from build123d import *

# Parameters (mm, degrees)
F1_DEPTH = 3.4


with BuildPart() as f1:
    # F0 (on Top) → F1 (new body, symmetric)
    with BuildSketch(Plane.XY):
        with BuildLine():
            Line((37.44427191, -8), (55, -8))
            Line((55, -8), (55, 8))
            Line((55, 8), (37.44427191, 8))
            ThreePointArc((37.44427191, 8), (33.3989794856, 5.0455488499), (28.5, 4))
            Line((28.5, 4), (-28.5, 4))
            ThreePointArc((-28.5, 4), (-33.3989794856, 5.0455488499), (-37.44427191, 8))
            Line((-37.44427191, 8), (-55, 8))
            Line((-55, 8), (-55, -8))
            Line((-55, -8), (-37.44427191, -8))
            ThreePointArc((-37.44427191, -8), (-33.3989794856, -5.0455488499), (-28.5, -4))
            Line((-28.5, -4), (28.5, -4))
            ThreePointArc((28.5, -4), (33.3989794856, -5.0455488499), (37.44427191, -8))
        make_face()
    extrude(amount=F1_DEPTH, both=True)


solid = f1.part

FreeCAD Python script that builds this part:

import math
import FreeCAD as App
import Part
import Sketcher

V = App.Vector
Q = App.Units.Quantity

doc = App.newDocument("Part")
body = doc.addObject("PartDesign::Body", "Body")

# Sketch on XY plane
sketch1 = body.newObject("Sketcher::SketchObject", "Sketch")
sketch1.AttachmentSupport = (doc.getObject("XY_Plane"), [""])
sketch1.MapMode = "FlatFace"
sketch1.addGeometry([
    Part.LineSegment(V(37, -8, 0), V(55, -8, 0)),  # 0
    Part.LineSegment(V(55, -8, 0), V(55, 8, 0)),  # 1
    Part.LineSegment(V(55, 8, 0), V(37, 8, 0)),  # 2
    Part.ArcOfCircle(Part.Circle(V(28, 16, 0), V(0, 0, 1), 12), math.radians(-90), math.radians(-42)),  # 3
    Part.LineSegment(V(28, 4, 0), V(-28, 4, 0)),  # 4
    Part.ArcOfCircle(Part.Circle(V(-28, 16, 0), V(0, 0, 1), 12), math.radians(-138), math.radians(-90)),  # 5
    Part.LineSegment(V(-37, 8, 0), V(-55, 8, 0)),  # 6
    Part.LineSegment(V(-55, 8, 0), V(-55, -8, 0)),  # 7
    Part.LineSegment(V(-55, -8, 0), V(-37, -8, 0)),  # 8
    Part.ArcOfCircle(Part.Circle(V(-28, -16, 0), V(0, 0, 1), 12), math.radians(90), math.radians(138)),  # 9
    Part.LineSegment(V(-28, -4, 0), V(28, -4, 0)),  # 10
    Part.ArcOfCircle(Part.Circle(V(28, -16, 0), V(0, 0, 1), 12), math.radians(42), math.radians(90)),  # 11
], False)
sketch1.addConstraint([
    Sketcher.Constraint("Coincident", 0, 2, 1, 1),
    Sketcher.Constraint("Coincident", 1, 2, 2, 1),
    Sketcher.Constraint("Coincident", 2, 2, 3, 2),
    Sketcher.Constraint("Tangent", 3, 1, 4, 1),
    Sketcher.Constraint("Tangent", 4, 2, 5, 2),
    Sketcher.Constraint("Coincident", 5, 1, 6, 1),
    Sketcher.Constraint("Coincident", 6, 2, 7, 1),
    Sketcher.Constraint("Coincident", 7, 2, 8, 1),
    Sketcher.Constraint("Coincident", 8, 2, 9, 2),
    Sketcher.Constraint("Tangent", 9, 1, 10, 1),
    Sketcher.Constraint("Tangent", 10, 2, 11, 2),
    Sketcher.Constraint("Coincident", 11, 1, 0, 1),
    Sketcher.Constraint("Horizontal", 0),
    Sketcher.Constraint("Vertical", 1),
    Sketcher.Constraint("Horizontal", 2),
    Sketcher.Constraint("Horizontal", 4),
    Sketcher.Constraint("Horizontal", 6),
    Sketcher.Constraint("Vertical", 7),
    Sketcher.Constraint("Horizontal", 8),
    Sketcher.Constraint("Horizontal", 10),
    Sketcher.Constraint("Equal", 3, 5),
    Sketcher.Constraint("Equal", 5, 9),
    Sketcher.Constraint("Equal", 9, 11),
    Sketcher.Constraint("Symmetric", 3, 3, 9, 3, -1, 1),
    Sketcher.Constraint("Symmetric", 0, 2, 6, 2, -1, 1),
    Sketcher.Constraint("Symmetric", 2, 2, 5, 1, -2),
    Sketcher.Constraint("Symmetric", 8, 2, 11, 1, -2),
    Sketcher.Constraint("Radius", 3, Q("12 mm")),
    Sketcher.Constraint("DistanceX", 4, 2, 4, 1, Q("57 mm")),
    Sketcher.Constraint("DistanceY", 1, 1, 1, 2, Q("16 mm")),
    Sketcher.Constraint("DistanceY", -1, 1, 3, 3, Q("16 mm")),
    Sketcher.Constraint("DistanceX", -1, 1, 0, 2, Q("55 mm")),
])
pad1 = body.newObject("PartDesign::Pad", "Pad")
pad1.Profile = sketch1
pad1.Length = 6.8
pad1.Midplane = True

doc.recompute()
